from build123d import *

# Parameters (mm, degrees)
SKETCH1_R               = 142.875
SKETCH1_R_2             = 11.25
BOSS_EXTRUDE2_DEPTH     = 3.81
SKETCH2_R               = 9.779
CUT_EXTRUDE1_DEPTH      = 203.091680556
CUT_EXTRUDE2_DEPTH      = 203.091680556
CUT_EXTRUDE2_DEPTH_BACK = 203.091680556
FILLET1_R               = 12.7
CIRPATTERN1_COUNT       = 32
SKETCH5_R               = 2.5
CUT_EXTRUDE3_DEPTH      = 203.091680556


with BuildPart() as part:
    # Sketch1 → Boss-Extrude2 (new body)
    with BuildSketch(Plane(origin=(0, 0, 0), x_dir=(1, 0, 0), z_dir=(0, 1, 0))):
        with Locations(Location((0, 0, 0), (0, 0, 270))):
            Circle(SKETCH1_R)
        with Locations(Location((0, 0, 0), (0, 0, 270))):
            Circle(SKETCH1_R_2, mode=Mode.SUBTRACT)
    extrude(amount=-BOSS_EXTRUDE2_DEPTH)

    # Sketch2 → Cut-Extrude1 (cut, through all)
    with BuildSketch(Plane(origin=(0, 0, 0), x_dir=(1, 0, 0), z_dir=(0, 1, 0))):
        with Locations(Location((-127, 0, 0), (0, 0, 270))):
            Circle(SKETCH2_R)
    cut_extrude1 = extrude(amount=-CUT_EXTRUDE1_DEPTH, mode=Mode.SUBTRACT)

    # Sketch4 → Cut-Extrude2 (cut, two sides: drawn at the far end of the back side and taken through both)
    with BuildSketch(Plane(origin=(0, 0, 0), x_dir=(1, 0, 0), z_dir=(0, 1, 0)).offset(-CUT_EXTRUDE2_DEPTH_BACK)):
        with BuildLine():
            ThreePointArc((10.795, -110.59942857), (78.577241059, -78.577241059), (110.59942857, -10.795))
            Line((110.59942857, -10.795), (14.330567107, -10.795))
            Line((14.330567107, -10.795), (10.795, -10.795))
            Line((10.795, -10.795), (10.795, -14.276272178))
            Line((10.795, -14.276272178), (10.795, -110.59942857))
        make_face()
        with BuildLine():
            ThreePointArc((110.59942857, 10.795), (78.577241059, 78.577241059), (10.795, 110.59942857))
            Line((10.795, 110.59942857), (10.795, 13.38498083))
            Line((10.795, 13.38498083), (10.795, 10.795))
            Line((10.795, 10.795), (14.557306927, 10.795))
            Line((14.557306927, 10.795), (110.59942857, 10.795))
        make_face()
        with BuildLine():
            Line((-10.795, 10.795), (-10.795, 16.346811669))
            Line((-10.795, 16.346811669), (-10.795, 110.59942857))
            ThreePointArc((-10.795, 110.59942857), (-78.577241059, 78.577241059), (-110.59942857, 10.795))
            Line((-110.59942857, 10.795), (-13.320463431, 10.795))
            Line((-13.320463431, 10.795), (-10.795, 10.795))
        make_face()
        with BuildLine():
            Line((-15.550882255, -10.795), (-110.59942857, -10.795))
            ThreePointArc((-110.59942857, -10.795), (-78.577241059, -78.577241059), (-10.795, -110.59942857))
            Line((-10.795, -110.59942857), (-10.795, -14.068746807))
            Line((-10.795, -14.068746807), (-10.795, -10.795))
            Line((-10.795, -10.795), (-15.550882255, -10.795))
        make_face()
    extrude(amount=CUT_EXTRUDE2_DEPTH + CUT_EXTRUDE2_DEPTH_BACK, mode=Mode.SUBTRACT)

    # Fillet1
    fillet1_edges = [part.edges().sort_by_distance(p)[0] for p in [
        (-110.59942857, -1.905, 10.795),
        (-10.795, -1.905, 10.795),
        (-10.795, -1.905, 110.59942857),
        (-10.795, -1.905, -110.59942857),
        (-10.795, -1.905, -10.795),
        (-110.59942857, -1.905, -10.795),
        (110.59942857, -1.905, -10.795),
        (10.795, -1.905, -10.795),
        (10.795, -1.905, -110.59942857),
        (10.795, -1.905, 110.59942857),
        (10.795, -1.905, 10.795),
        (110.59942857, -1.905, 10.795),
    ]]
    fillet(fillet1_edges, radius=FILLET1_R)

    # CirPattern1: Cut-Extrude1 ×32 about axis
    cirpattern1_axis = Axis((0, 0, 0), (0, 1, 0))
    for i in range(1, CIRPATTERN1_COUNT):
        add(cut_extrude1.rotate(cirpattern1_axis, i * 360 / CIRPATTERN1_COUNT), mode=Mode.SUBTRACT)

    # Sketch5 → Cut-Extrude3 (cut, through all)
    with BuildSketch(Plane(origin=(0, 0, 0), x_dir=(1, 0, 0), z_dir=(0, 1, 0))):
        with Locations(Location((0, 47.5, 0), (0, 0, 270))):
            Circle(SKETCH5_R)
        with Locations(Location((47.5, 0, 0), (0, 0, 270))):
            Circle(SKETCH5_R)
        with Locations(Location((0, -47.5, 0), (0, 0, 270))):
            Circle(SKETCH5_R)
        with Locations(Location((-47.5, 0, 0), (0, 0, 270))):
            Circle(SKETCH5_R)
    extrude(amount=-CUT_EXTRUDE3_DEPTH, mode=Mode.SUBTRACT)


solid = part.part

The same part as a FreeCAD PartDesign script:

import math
import FreeCAD as App
import Part
import Sketcher

V = App.Vector
Q = App.Units.Quantity


def edges_at(feature, points):
    """Names of the edges that pass closest to the given points."""
    edges = feature.Shape.Edges
    near = lambda p: min(range(len(edges)), key=lambda i: edges[i].distToShape(Part.Vertex(*p))[0])
    return sorted({f"Edge{near(p) + 1}" for p in points})

doc = App.newDocument("Part")
params = doc.addObject("Spreadsheet::Sheet", "Params")
for row, (alias, value) in enumerate([
    ("sketch1_diameter", "11.25 in"),
    ("pad1_length", "0.15 in"),
    ("sketch2_diameter", "0.77 in"),
    ("sketch3_radius", "4.375 in"),
    ("fillet_radius", "0.5 in"),
], start=1):
    params.set(f"A{row}", alias)
    params.set(f"B{row}", "=" + value)
    params.setAlias(f"B{row}", alias)

body = doc.addObject("PartDesign::Body", "Body")

sketch1 = body.newObject("Sketcher::SketchObject", "Sketch")
sketch1.AttachmentSupport = (doc.getObject("XZ_Plane"), [""])
sketch1.MapMode = "FlatFace"
sketch1.addGeometry([
    Part.Circle(V(0, 0, 0), V(0, 0, 1), 143),
    Part.Circle(V(0, 0, 0), V(0, 0, 1), 11),
], False)
sketch1.addConstraint([
    Sketcher.Constraint("Coincident", 0, 3, -1, 1),
    Sketcher.Constraint("Coincident", 1, 3, -1, 1),
    Sketcher.Constraint("Diameter", 0, Q("11.25 in")),
    Sketcher.Constraint("Diameter", 1, 22.5),
])
sketch1.setExpression("Constraints[2]", "Params.sketch1_diameter")
pad1 = body.newObject("PartDesign::Pad", "Pad")
pad1.Profile = sketch1
pad1.setExpression("Length", "Params.pad1_length")

sketch2 = body.newObject("Sketcher::SketchObject", "Sketch001")
sketch2.AttachmentSupport = (doc.getObject("XZ_Plane"), [""])
sketch2.MapMode = "FlatFace"
sketch2.addGeometry(Part.Circle(V(-127, 0, 0), V(0, 0, 1), 10), False)
sketch2.addConstraint([
    Sketcher.Constraint("PointOnObject", 0, 3, -1),
    Sketcher.Constraint("Diameter", 0, Q("0.77 in")),
    Sketcher.Constraint("DistanceX", 0, 3, -1, 1, Q("5 in")),
])
sketch2.setExpression("Constraints[1]", "Params.sketch2_diameter")
pocket1 = body.newObject("PartDesign::Pocket", "Pocket")
pocket1.Profile = sketch2
pocket1.Type = "ThroughAll"
pocket1.Reversed = True

sketch3 = body.newObject("Sketcher::SketchObject", "Sketch002")
sketch3.AttachmentSupport = (doc.getObject("XZ_Plane"), [""])
sketch3.MapMode = "FlatFace"
sketch3.addGeometry([
    Part.ArcOfCircle(Part.Circle(V(0, 0, 0), V(0, 0, 1), 111), math.radians(6), math.radians(84)),
    Part.LineSegment(V(111, 11, 0), V(11, 11, 0)),
    Part.LineSegment(V(11, 11, 0), V(11, 111, 0)),
    Part.ArcOfCircle(Part.Circle(V(0, 0, 0), V(0, 0, 1), 111), math.radians(-84), math.radians(-6)),
    Part.LineSegment(V(11, -111, 0), V(11, -11, 0)),
    Part.LineSegment(V(11, -11, 0), V(111, -11, 0)),
    Part.LineSegment(V(-11, -11, 0), V(-11, -111, 0)),
    Part.ArcOfCircle(Part.Circle(V(0, 0, 0), V(0, 0, 1), 111), math.radians(-174), math.radians(-96)),
    Part.LineSegment(V(-111, -11, 0), V(-11, -11, 0)),
    Part.ArcOfCircle(Part.Circle(V(0, 0, 0), V(0, 0, 1), 111), math.radians(96), math.radians(174)),
    Part.LineSegment(V(-11, 111, 0), V(-11, 11, 0)),
    Part.LineSegment(V(-11, 11, 0), V(-111, 11, 0)),
], False)
sketch3.addConstraint([
    Sketcher.Constraint("Coincident", 0, 1, 1, 1),
    Sketcher.Constraint("Coincident", 1, 2, 2, 1),
    Sketcher.Constraint("Coincident", 2, 2, 0, 2),
    Sketcher.Constraint("Coincident", 3, 1, 4, 1),
    Sketcher.Constraint("Coincident", 4, 2, 5, 1),
    Sketcher.Constraint("Coincident", 5, 2, 3, 2),
    Sketcher.Constraint("Coincident", 6, 2, 7, 2),
    Sketcher.Constraint("Coincident", 7, 1, 8, 1),
    Sketcher.Constraint("Coincident", 8, 2, 6, 1),
    Sketcher.Constraint("Coincident", 9, 1, 10, 1),
    Sketcher.Constraint("Coincident", 10, 2, 11, 1),
    Sketcher.Constraint("Coincident", 11, 2, 9, 2),
    Sketcher.Constraint("Horizontal", 1),
    Sketcher.Constraint("Vertical", 2),
    Sketcher.Constraint("Vertical", 4),
    Sketcher.Constraint("Horizontal", 5),
    Sketcher.Constraint("Vertical", 6),
    Sketcher.Constraint("Horizontal", 8),
    Sketcher.Constraint("Vertical", 10),
    Sketcher.Constraint("Horizontal", 11),
    Sketcher.Constraint("Coincident", 0, 3, -1, 1),
    Sketcher.Constraint("Coincident", 3, 3, -1, 1),
    Sketcher.Constraint("Coincident", 7, 3, -1, 1),
    Sketcher.Constraint("Coincident", 9, 3, -1, 1),
    Sketcher.Constraint("Equal", 0, 3),
    Sketcher.Constraint("Equal", 3, 7),
    Sketcher.Constraint("Equal", 7, 9),
    Sketcher.Constraint("Symmetric", 1, 2, 8, 2, -1, 1),
    Sketcher.Constraint("Symmetric", 4, 2, 10, 2, -1, 1),
    Sketcher.Constraint("Symmetric", 4, 2, 8, 2, -2),
    Sketcher.Constraint("Equal", 11, 2),
    Sketcher.Constraint("Radius", 0, Q("4.375 in")),
    Sketcher.Constraint("DistanceY", 4, 2, 1, 2, Q("0.85 in")),
])
sketch3.setExpression("Constraints[31]", "Params.sketch3_radius")
pocket2 = body.newObject("PartDesign::Pocket", "Pocket001")
pocket2.Profile = sketch3
pocket2.Type = "ThroughAll"
pocket2.Midplane = True
doc.recompute()

fillet = body.newObject("PartDesign::Fillet", "Fillet")
fillet.Base = (pocket2, edges_at(pocket2, [
    (-110.599, -1.905, 10.795),
    (-10.795, -1.905, 10.795),
    (-10.795, -1.905, 110.599),
    (-10.795, -1.905, -110.599),
    (-10.795, -1.905, -10.795),
    (-110.599, -1.905, -10.795),
    (110.599, -1.905, -10.795),
    (10.795, -1.905, -10.795),
    (10.795, -1.905, -110.599),
    (10.795, -1.905, 110.599),
    (10.795, -1.905, 10.795),
    (110.599, -1.905, 10.795),
]))
fillet.setExpression("Radius", "Params.fillet_radius")
doc.recompute()

polarpattern = body.newObject("PartDesign::PolarPattern", "PolarPattern")
polarpattern.Originals = [pocket1]
polarpattern.Axis = (doc.getObject("Y_Axis"), [""])
polarpattern.Angle = 360
polarpattern.Occurrences = 32
body.Tip = polarpattern

sketch4 = body.newObject("Sketcher::SketchObject", "Sketch003")
sketch4.AttachmentSupport = (doc.getObject("XZ_Plane"), [""])
sketch4.MapMode = "FlatFace"
sketch4.addGeometry([
    Part.Circle(V(0, -47.5, 0), V(0, 0, 1), 2.5),
    Part.Circle(V(47.5, 0, 0), V(0, 0, 1), 2.5),
    Part.Circle(V(0, 47.5, 0), V(0, 0, 1), 2.5),
    Part.Circle(V(-47.5, 0, 0), V(0, 0, 1), 2.5),
], False)
sketch4.addConstraint([
    Sketcher.Constraint("Equal", 0, 1),
    Sketcher.Constraint("Equal", 1, 2),
    Sketcher.Constraint("Equal", 2, 3),
    Sketcher.Constraint("Symmetric", 0, 3, 2, 3, -1, 1),
    Sketcher.Constraint("Symmetric", 1, 3, 3, 3, -1, 1),
    Sketcher.Constraint("PointOnObject", 0, 3, -2),
    Sketcher.Constraint("PointOnObject", 1, 3, -1),
    Sketcher.Constraint("Diameter", 0, 5.0),
    Sketcher.Constraint("DistanceY", 0, 3, -1, 1, 47.5),
    Sketcher.Constraint("DistanceX", -1, 1, 1, 3, 47.5),
])
pocket3 = body.newObject("PartDesign::Pocket", "Pocket002")
pocket3.Profile = sketch4
pocket3.Type = "ThroughAll"
pocket3.Reversed = True

doc.recompute()
